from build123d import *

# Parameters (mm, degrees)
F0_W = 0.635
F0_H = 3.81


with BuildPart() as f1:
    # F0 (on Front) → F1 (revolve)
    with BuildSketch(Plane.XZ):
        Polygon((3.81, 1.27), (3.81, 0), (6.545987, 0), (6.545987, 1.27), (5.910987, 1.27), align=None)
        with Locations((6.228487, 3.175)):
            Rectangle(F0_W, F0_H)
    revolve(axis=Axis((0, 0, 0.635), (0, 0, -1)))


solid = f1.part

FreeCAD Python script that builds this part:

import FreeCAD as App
import Part
import Sketcher
from FreeCAD import Vector
Q = App.Units.Quantity

doc = App.newDocument("Part")
params = doc.addObject("Spreadsheet::Sheet", "Params")
for row, (alias, value) in enumerate([
    ("sketch1_height", "0.2 in"),
    ("sketch1_height2", "0.05 in"),
    ("sketch1_width", "0.025 in"),
    ("revolution_angle", "360 deg"),
], start=1):
    params.set(f"A{row}", alias)
    params.set(f"B{row}", "=" + value)
    params.setAlias(f"B{row}", alias)

body = doc.addObject("PartDesign::Body", "Body")

# Sketch on XZ plane
sketch1 = body.newObject("Sketcher::SketchObject", "Sketch")
sketch1.AttachmentSupport = (doc.getObject("XZ_Plane"), [""])
sketch1.MapMode = "FlatFace"
sketch1.addGeometry([
    Part.LineSegment(Vector(3.8, 1.3, 0), Vector(3.8, 0, 0)),  # 0
    Part.LineSegment(Vector(3.8, 0, 0), Vector(6.5, 0, 0)),  # 1
    Part.LineSegment(Vector(6.5, 0, 0), Vector(6.5, 5.1, 0)),  # 2
    Part.LineSegment(Vector(6.5, 5.1, 0), Vector(5.9, 5.1, 0)),  # 3
    Part.LineSegment(Vector(5.9, 5.1, 0), Vector(5.9, 1.3, 0)),  # 4
    Part.LineSegment(Vector(5.9, 1.3, 0), Vector(3.8, 1.3, 0)),  # 5
], False)
sketch1.addConstraint([
    Sketcher.Constraint("Coincident", 0, 2, 1, 1),
    Sketcher.Constraint("Coincident", 1, 2, 2, 1),
    Sketcher.Constraint("Coincident", 2, 2, 3, 1),
    Sketcher.Constraint("Coincident", 3, 2, 4, 1),
    Sketcher.Constraint("Coincident", 4, 2, 5, 1),
    Sketcher.Constraint("Coincident", 5, 2, 0, 1),
    Sketcher.Constraint("Vertical", 0),
    Sketcher.Constraint("Horizontal", 1),
    Sketcher.Constraint("Vertical", 2),
    Sketcher.Constraint("Horizontal", 3),
    Sketcher.Constraint("Vertical", 4),
    Sketcher.Constraint("Horizontal", 5),
    Sketcher.Constraint("PointOnObject", 0, 2, -1),
    Sketcher.Constraint("DistanceY", 2, 1, 2, 2, Q("0.2 in")),
    Sketcher.Constraint("DistanceY", 0, 2, 0, 1, Q("0.05 in")),
    Sketcher.Constraint("DistanceX", 3, 2, 3, 1, Q("0.025 in")),
    Sketcher.Constraint("DistanceX", -1, 1, 0, 2, Q("0.15 in")),
    Sketcher.Constraint("DistanceX", 1, 1, 1, 2, 2.735987),
])
sketch1.setExpression("Constraints[13]", "Params.sketch1_height")
sketch1.setExpression("Constraints[14]", "Params.sketch1_height2")
sketch1.setExpression("Constraints[15]", "Params.sketch1_width")
revolution = body.newObject("PartDesign::Revolution", "Revolution")
revolution.Profile = sketch1
revolution.ReferenceAxis = (sketch1, ["V_Axis"])
revolution.setExpression("Angle", "Params.revolution_angle")

doc.recompute()
